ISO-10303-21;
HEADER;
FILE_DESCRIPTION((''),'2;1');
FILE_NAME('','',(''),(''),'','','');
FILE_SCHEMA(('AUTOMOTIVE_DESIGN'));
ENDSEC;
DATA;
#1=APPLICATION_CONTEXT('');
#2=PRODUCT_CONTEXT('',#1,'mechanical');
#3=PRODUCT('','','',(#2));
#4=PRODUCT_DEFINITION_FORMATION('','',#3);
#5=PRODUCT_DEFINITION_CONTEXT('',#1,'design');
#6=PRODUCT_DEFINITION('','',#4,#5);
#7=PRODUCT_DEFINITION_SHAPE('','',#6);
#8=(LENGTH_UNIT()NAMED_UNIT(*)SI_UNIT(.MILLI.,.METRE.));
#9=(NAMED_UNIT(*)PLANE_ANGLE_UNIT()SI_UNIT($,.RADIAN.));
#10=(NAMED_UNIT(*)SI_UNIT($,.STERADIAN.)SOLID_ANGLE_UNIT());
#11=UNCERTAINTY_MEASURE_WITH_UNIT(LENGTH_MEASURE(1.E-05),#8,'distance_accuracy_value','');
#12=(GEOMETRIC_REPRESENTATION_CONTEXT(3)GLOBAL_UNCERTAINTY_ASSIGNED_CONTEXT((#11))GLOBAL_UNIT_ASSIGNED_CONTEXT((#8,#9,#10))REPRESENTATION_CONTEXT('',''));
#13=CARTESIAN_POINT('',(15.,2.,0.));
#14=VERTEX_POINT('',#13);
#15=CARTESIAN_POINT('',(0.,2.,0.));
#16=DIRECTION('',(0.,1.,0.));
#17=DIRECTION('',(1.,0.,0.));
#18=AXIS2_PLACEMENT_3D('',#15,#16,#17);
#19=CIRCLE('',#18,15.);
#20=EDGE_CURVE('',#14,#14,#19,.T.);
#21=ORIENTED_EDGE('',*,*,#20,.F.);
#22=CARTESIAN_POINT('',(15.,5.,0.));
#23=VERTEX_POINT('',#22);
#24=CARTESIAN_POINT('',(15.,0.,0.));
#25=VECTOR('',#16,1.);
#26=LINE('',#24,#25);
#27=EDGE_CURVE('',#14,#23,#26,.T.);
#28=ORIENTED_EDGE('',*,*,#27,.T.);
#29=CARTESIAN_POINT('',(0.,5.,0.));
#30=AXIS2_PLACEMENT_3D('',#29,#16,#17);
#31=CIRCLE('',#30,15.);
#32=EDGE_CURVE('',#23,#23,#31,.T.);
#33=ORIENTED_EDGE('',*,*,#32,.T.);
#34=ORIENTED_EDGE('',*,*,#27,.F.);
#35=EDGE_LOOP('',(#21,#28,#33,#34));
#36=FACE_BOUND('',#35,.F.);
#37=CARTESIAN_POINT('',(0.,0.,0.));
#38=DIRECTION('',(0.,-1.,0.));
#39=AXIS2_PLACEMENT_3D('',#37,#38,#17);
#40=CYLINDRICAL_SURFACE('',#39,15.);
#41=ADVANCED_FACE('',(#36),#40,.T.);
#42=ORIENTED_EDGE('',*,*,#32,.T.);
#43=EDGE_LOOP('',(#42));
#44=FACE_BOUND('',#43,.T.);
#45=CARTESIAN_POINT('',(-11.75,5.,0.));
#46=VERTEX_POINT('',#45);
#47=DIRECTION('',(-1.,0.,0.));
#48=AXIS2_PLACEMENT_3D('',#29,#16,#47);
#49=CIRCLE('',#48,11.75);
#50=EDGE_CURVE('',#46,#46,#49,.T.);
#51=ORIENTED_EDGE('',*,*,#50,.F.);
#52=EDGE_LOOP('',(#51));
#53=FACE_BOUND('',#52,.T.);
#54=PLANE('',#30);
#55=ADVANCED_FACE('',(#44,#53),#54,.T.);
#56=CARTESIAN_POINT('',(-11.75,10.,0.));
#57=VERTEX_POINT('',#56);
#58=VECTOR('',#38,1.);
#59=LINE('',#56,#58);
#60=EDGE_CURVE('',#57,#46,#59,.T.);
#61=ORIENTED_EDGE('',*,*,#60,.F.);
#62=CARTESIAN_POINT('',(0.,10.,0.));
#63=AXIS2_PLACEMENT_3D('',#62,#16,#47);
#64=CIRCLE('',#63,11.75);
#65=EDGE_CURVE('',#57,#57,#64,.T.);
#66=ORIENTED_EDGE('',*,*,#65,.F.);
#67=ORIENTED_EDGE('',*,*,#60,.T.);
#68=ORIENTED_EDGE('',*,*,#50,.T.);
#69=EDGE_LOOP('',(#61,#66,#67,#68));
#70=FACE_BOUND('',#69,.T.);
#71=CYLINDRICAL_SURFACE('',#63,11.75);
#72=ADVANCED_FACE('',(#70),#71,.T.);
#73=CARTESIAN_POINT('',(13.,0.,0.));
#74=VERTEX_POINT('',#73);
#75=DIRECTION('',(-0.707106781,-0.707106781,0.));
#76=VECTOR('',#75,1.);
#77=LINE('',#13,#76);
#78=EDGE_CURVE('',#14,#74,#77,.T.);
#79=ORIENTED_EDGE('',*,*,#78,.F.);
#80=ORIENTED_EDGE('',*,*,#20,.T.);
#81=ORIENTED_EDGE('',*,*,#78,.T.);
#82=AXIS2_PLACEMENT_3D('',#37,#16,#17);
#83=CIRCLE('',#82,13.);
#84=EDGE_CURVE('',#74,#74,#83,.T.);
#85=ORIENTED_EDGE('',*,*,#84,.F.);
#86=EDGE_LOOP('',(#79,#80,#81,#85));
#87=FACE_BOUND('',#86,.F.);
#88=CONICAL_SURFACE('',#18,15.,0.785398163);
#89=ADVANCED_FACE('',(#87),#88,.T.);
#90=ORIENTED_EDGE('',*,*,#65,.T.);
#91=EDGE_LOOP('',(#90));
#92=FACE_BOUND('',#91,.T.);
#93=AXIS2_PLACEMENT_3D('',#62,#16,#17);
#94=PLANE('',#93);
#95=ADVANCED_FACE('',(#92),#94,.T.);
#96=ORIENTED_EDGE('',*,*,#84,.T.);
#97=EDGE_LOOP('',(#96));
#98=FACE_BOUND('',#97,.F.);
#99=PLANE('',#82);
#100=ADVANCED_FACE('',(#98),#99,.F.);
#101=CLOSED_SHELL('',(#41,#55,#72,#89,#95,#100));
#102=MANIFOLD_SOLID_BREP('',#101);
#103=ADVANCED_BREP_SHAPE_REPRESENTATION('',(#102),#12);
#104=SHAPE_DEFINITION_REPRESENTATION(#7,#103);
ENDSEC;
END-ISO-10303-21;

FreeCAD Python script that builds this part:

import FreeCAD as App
import Part
import Sketcher
from FreeCAD import Vector
Q = App.Units.Quantity


def edges_at(feature, points):
    """Names of the edges that pass closest to the given points."""
    edges = feature.Shape.Edges
    near = lambda p: min(range(len(edges)), key=lambda i: edges[i].distToShape(Part.Vertex(*p))[0])
    return sorted({f"Edge{near(p) + 1}" for p in points})

doc = App.newDocument("Part")
body = doc.addObject("PartDesign::Body", "Body")

# Sketch on XZ plane
sketch1 = body.newObject("Sketcher::SketchObject", "Sketch")
sketch1.AttachmentSupport = (doc.getObject("XZ_Plane"), [""])
sketch1.MapMode = "FlatFace"
sketch1.addGeometry(Part.Circle(Vector(0, 0, 0), Vector(0, 0, 1), 15), False)
sketch1.addGeometry(Part.Circle(Vector(0, 0, 0), Vector(0, 0, 1), 12), False)
sketch1.addConstraint(Sketcher.Constraint("Coincident", 0, 3, -1, 1))
sketch1.addConstraint(Sketcher.Constraint("Coincident", 1, 3, -1, 1))
sketch1.addConstraint(Sketcher.Constraint("Diameter", 0, Q("30 mm")))
sketch1.addConstraint(Sketcher.Constraint("Diameter", 1, Q("24 mm")))
pad1 = body.newObject("PartDesign::Pad", "Pad")
pad1.Profile = sketch1
pad1.Length = 5
pad1.Reversed = True

# Sketch on XZ plane
sketch2 = body.newObject("Sketcher::SketchObject", "Sketch001")
sketch2.AttachmentSupport = (doc.getObject("XZ_Plane"), [""])
sketch2.MapMode = "FlatFace"
sketch2.addGeometry(Part.Circle(Vector(0, 0, 0), Vector(0, 0, 1), 12), False)
sketch2.addConstraint(Sketcher.Constraint("Coincident", 0, 3, -1, 1))
sketch2.addConstraint(Sketcher.Constraint("Diameter", 0, Q("24 mm")))
pad2 = body.newObject("PartDesign::Pad", "Pad001")
pad2.Profile = sketch2
pad2.Length = 10
pad2.Reversed = True
doc.recompute()

chamfer = body.newObject("PartDesign::Chamfer", "Chamfer")
chamfer.Base = (pad2, edges_at(pad2, [(-13.985, 0, 5.424)]))
chamfer.Size = 2

# Sketch on XZ plane
sketch3 = body.newObject("Sketcher::SketchObject", "Sketch002")
sketch3.AttachmentSupport = (doc.getObject("XZ_Plane"), [""])
sketch3.MapMode = "FlatFace"
sketch3.AttachmentOffset = App.Placement(Vector(0, 0, -10), App.Rotation())
sketch3.addGeometry(Part.Circle(Vector(0, 0, 0), Vector(0, 0, 1), 12), False)
sketch3.addGeometry(Part.Circle(Vector(0, 0, 0), Vector(0, 0, 1), 12), False)
sketch3.addConstraint(Sketcher.Constraint("Coincident", 0, 3, -1, 1))
sketch3.addConstraint(Sketcher.Constraint("Coincident", 1, 3, -1, 1))
sketch3.addConstraint(Sketcher.Constraint("Diameter", 1, Q("23.5 mm")))
sketch3.addConstraint(Sketcher.Constraint("Diameter", 0, Q("24 mm")))
pocket1 = body.newObject("PartDesign::Pocket", "Pocket")
pocket1.Profile = sketch3
pocket1.Length = 5
pocket1.Reversed = True

doc.recompute()
